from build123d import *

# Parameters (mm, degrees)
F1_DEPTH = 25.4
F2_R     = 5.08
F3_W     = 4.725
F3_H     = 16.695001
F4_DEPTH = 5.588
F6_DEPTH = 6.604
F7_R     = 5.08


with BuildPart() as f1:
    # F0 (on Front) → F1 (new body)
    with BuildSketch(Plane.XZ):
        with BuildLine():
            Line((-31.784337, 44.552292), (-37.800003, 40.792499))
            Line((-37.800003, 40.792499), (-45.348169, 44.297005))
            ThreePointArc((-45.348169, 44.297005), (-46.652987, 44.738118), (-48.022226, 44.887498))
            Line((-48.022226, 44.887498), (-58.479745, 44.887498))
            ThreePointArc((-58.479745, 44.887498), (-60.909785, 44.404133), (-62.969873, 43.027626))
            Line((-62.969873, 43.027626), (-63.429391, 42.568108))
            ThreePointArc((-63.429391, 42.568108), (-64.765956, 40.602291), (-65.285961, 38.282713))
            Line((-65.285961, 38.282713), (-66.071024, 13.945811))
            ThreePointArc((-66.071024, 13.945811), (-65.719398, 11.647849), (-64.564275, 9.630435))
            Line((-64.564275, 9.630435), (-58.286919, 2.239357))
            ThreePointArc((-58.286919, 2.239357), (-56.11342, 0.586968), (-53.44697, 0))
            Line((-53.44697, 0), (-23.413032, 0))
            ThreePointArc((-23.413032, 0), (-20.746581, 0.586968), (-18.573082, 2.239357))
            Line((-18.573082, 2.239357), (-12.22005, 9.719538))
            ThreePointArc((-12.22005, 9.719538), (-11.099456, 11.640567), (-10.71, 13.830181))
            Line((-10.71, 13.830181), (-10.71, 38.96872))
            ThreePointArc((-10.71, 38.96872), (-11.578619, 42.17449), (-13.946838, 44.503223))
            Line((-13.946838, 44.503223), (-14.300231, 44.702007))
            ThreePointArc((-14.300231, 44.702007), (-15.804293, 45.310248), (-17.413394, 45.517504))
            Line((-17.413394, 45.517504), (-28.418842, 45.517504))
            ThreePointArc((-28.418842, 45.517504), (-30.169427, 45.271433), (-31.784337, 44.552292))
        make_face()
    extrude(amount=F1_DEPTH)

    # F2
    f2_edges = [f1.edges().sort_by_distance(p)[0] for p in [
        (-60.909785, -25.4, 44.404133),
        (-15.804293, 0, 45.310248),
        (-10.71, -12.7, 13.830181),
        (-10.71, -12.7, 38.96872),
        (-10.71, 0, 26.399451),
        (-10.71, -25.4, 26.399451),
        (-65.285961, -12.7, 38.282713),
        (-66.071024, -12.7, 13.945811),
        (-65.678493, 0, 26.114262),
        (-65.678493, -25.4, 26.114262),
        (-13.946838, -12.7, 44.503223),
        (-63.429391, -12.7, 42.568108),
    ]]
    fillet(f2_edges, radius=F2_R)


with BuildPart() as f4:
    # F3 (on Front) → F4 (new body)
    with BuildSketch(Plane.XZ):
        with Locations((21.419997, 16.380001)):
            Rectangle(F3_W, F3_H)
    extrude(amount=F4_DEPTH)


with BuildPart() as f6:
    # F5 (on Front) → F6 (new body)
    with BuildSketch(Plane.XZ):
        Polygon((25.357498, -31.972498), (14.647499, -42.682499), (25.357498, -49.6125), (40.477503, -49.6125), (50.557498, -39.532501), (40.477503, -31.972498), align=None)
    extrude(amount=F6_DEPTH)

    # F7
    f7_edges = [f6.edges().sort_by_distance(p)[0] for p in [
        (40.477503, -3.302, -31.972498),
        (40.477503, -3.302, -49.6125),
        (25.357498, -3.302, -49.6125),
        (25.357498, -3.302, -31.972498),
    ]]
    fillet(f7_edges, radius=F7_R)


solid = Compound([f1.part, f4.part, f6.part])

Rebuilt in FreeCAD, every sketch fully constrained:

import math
import FreeCAD as App
import Part
import Sketcher
Q = App.Units.Quantity


def edges_at(feature, points):
    """Names of the edges that pass closest to the given points."""
    edges = feature.Shape.Edges
    near = lambda p: min(range(len(edges)), key=lambda i: edges[i].distToShape(Part.Vertex(*p))[0])
    return sorted({f"Edge{near(p) + 1}" for p in points})


def add_polygon(sketch, points):
    """Adds a closed chain of lines whose ends are joined by coincident constraints."""
    first, n = sketch.GeometryCount, len(points)
    for a, b in zip(points, points[1:] + points[:1]):
        sketch.addGeometry(Part.LineSegment(App.Vector(*a, 0), App.Vector(*b, 0)), False)
    for i in range(n):
        sketch.addConstraint(Sketcher.Constraint("Coincident", first + i, 2, first + (i + 1) % n, 1))

doc = App.newDocument("Part")
params = doc.addObject("Spreadsheet::Sheet", "Params")
for row, (alias, value) in enumerate([
    ("sketch1_radius", "0.25 in"),
    ("sketch1_radius2", "0.2499999 in"),
    ("sketch1_radius3", "0.2500001 in"),
    ("sketch1_radius4", "0.2500001 in"),
    ("sketch1_radius5", "0.25 in"),
    ("pad1_length", "1 in"),
    ("fillet_radius", "0.2 in"),
    ("pad2_length", "0.22 in"),
    ("pad3_length", "0.26 in"),
    ("fillet2_radius", "0.2 in"),
], start=1):
    params.set(f"A{row}", alias)
    params.set(f"B{row}", "=" + value)
    params.setAlias(f"B{row}", alias)

body = doc.addObject("PartDesign::Body", "Body")

sketch1 = body.newObject("Sketcher::SketchObject", "Sketch")
sketch1.AttachmentSupport = (doc.getObject("XZ_Plane"), [""])
sketch1.MapMode = "FlatFace"
sketch1.addGeometry([
    Part.LineSegment(App.Vector(-31.784337, 44.552292, 0), App.Vector(-37.800003, 40.792499, 0)),
    Part.LineSegment(App.Vector(-37.800003, 40.792499, 0), App.Vector(-45.348169, 44.297005, 0)),
    Part.ArcOfCircle(Part.Circle(App.Vector(-48.022224, 38.537508, 0), App.Vector(0, 0, 1), 6.34999), math.radians(65.095213), math.radians(90.000022)),
    Part.LineSegment(App.Vector(-48.022226, 44.887498, 0), App.Vector(-58.479745, 44.887498, 0)),
    Part.ArcOfCircle(Part.Circle(App.Vector(-58.479745, 38.537499, 0), App.Vector(0, 0, 1), 6.349999), math.radians(89.999997), math.radians(135.000005)),
    Part.LineSegment(App.Vector(-62.969873, 43.027626, 0), App.Vector(-63.429391, 42.568108, 0)),
    Part.ArcOfCircle(Part.Circle(App.Vector(-58.939265, 38.077982, 0), App.Vector(0, 0, 1), 6.349997), math.radians(134.999998), math.radians(178.152398)),
    Part.LineSegment(App.Vector(-65.285961, 38.282713, 0), App.Vector(-66.071024, 13.945811, 0)),
    Part.ArcOfCircle(Part.Circle(App.Vector(-59.724331, 13.741076, 0), App.Vector(0, 0, 1), 6.349995), math.radians(178.152365), math.radians(220.341771)),
    Part.LineSegment(App.Vector(-64.564275, 9.630435, 0), App.Vector(-58.286919, 2.239357, 0)),
    Part.ArcOfCircle(Part.Circle(App.Vector(-53.446968, 6.350002, 0), App.Vector(0, 0, 1), 6.350002), math.radians(-139.658242), math.radians(-90.000015)),
    Part.LineSegment(App.Vector(-53.44697, 0, 0), App.Vector(-23.413032, 0, 0)),
    Part.ArcOfCircle(Part.Circle(App.Vector(-23.413033, 6.350002, 0), App.Vector(0, 0, 1), 6.350002), math.radians(-89.999994), math.radians(-40.341758)),
    Part.LineSegment(App.Vector(-18.573082, 2.239357, 0), App.Vector(-12.22005, 9.719538, 0)),
    Part.ArcOfCircle(Part.Circle(App.Vector(-17.060008, 13.830184, 0), App.Vector(0, 0, 1), 6.350008), math.radians(-40.341721), math.radians(-0.000025)),
    Part.LineSegment(App.Vector(-10.71, 13.830181, 0), App.Vector(-10.71, 38.96872, 0)),
    Part.ArcOfCircle(Part.Circle(App.Vector(-17.060001, 38.96872, 0), App.Vector(0, 0, 1), 6.350001), math.radians(0.000004), math.radians(60.64221)),
    Part.LineSegment(App.Vector(-13.946838, 44.503223, 0), App.Vector(-14.300231, 44.702007, 0)),
    Part.ArcOfCircle(Part.Circle(App.Vector(-17.413389, 39.167518, 0), App.Vector(0, 0, 1), 6.349986), math.radians(60.642182), math.radians(90.000044)),
    Part.LineSegment(App.Vector(-17.413394, 45.517504, 0), App.Vector(-28.418842, 45.517504, 0)),
    Part.ArcOfCircle(Part.Circle(App.Vector(-28.418841, 39.1675, 0), App.Vector(0, 0, 1), 6.350004), math.radians(90.000013), math.radians(122.005394)),
], False)
sketch1.addConstraint([
    Sketcher.Constraint("Coincident", 0, 2, 1, 1),
    Sketcher.Constraint("Coincident", 1, 2, 2, 1),
    Sketcher.Constraint("Coincident", 2, 2, 3, 1),
    Sketcher.Constraint("Coincident", 3, 2, 4, 1),
    Sketcher.Constraint("Coincident", 4, 2, 5, 1),
    Sketcher.Constraint("Coincident", 5, 2, 6, 1),
    Sketcher.Constraint("Coincident", 6, 2, 7, 1),
    Sketcher.Constraint("Coincident", 7, 2, 8, 1),
    Sketcher.Constraint("Coincident", 8, 2, 9, 1),
    Sketcher.Constraint("Coincident", 9, 2, 10, 1),
    Sketcher.Constraint("Coincident", 10, 2, 11, 1),
    Sketcher.Constraint("Coincident", 11, 2, 12, 1),
    Sketcher.Constraint("Coincident", 12, 2, 13, 1),
    Sketcher.Constraint("Coincident", 13, 2, 14, 1),
    Sketcher.Constraint("Coincident", 14, 2, 15, 1),
    Sketcher.Constraint("Coincident", 15, 2, 16, 1),
    Sketcher.Constraint("Coincident", 16, 2, 17, 1),
    Sketcher.Constraint("Coincident", 17, 2, 18, 1),
    Sketcher.Constraint("Coincident", 18, 2, 19, 1),
    Sketcher.Constraint("Coincident", 19, 2, 20, 1),
    Sketcher.Constraint("Coincident", 20, 2, 0, 1),
    Sketcher.Constraint("Horizontal", 3),
    Sketcher.Constraint("Horizontal", 11),
    Sketcher.Constraint("Vertical", 15),
    Sketcher.Constraint("Horizontal", 19),
    Sketcher.Constraint("PointOnObject", 10, 2, -1),
    Sketcher.Constraint("Radius", 4, Q("0.25 in")),
    Sketcher.Constraint("Radius", 6, Q("0.2499999 in")),
    Sketcher.Constraint("Radius", 10, Q("0.2500001 in")),
    Sketcher.Constraint("Radius", 12, Q("0.2500001 in")),
    Sketcher.Constraint("Radius", 16, Q("0.25 in")),
    Sketcher.Constraint("Radius", 20, Q("0.2500002 in")),
    Sketcher.Constraint("Radius", 2, Q("6.34999 mm")),
    Sketcher.Constraint("Radius", 14, Q("6.350008 mm")),
    Sketcher.Constraint("Radius", 8, Q("6.349995 mm")),
    Sketcher.Constraint("Radius", 18, Q("6.349986 mm")),
    Sketcher.Constraint("DistanceX", 4, 3, 20, 3, Q("1.1835002 in")),
    Sketcher.Constraint("DistanceX", 20, 2, 19, 2, Q("0.1324998 in")),
    Sketcher.Constraint("DistanceX", 20, 2, 20, 3, Q("0.1324999 in")),
    Sketcher.Constraint("DistanceX", 3, 2, 3, 1, Q("10.457519 mm")),
    Sketcher.Constraint("DistanceX", 19, 2, 19, 1, Q("11.005448 mm")),
    Sketcher.Constraint("DistanceY", 15, 1, 15, 2, Q("25.138539 mm")),
    Sketcher.Constraint("DistanceY", -1, 1, 4, 3, Q("38.537499 mm")),
    Sketcher.Constraint("DistanceX", 16, 3, -1, 1, Q("17.060001 mm")),
    Sketcher.Constraint("DistanceY", -1, 1, 20, 3, Q("39.1675 mm")),
    Sketcher.Constraint("DistanceY", -1, 1, 0, 2, Q("40.792499 mm")),
    Sketcher.Constraint("DistanceX", 8, 3, 12, 3, Q("36.311298 mm")),
    Sketcher.Constraint("DistanceY", 16, 3, 18, 3, Q("0.198799 mm")),
    Sketcher.Constraint("DistanceY", 15, 2, 18, 3, Q("0.198798 mm")),
    Sketcher.Constraint("Distance", 0, Q("7.093961 mm")),
    Sketcher.Constraint("Distance", 1, Q("8.322041 mm")),
    Sketcher.Constraint("Distance", 7, Q("24.349561 mm")),
    Sketcher.Constraint("DistanceX", 11, 1, 11, 2, Q("30.033938 mm")),
    Sketcher.Constraint("DistanceY", -1, 1, 6, 3, Q("38.077982 mm")),
    Sketcher.Constraint("DistanceX", 8, 3, -1, 1, Q("59.724331 mm")),
    Sketcher.Constraint("DistanceX", 10, 3, -1, 1, Q("53.446968 mm")),
    Sketcher.Constraint("DistanceX", 18, 3, -1, 1, Q("17.413389 mm")),
    Sketcher.Constraint("DistanceX", 20, 3, -1, 1, Q("28.418841 mm")),
    Sketcher.Constraint("DistanceX", 1, 2, -1, 1, Q("45.348169 mm")),
    Sketcher.Constraint("DistanceX", 5, 2, -1, 1, Q("63.429391 mm")),
    Sketcher.Constraint("DistanceY", -1, 1, 5, 2, Q("42.568108 mm")),
    Sketcher.Constraint("DistanceX", 6, 2, -1, 1, Q("65.285961 mm")),
    Sketcher.Constraint("DistanceX", 9, 2, -1, 1, Q("58.286919 mm")),
    Sketcher.Constraint("DistanceX", 10, 2, -1, 1, Q("53.44697 mm")),
    Sketcher.Constraint("DistanceX", 12, 2, -1, 1, Q("18.573082 mm")),
    Sketcher.Constraint("DistanceX", 13, 2, -1, 1, Q("12.22005 mm")),
    Sketcher.Constraint("DistanceX", 16, 2, -1, 1, Q("13.946838 mm")),
    Sketcher.Constraint("DistanceX", 17, 2, -1, 1, Q("14.300231 mm")),
    Sketcher.Constraint("DistanceY", 8, 3, 2, 3, Q("24.796431 mm")),
    Sketcher.Constraint("DistanceX", 4, 3, 2, 2, Q("10.457519 mm")),
    Sketcher.Constraint("DistanceX", 4, 2, 2, 3, Q("14.947649 mm")),
    Sketcher.Constraint("DistanceX", 7, 2, 8, 2, Q("1.506749 mm")),
    Sketcher.Constraint("DistanceY", 12, 2, 13, 2, Q("7.480181 mm")),
])
sketch1.setExpression("Constraints[26]", "Params.sketch1_radius")
sketch1.setExpression("Constraints[27]", "Params.sketch1_radius2")
sketch1.setExpression("Constraints[28]", "Params.sketch1_radius3")
sketch1.setExpression("Constraints[29]", "Params.sketch1_radius4")
sketch1.setExpression("Constraints[30]", "Params.sketch1_radius5")
pad1 = body.newObject("PartDesign::Pad", "Pad")
pad1.Profile = sketch1
pad1.setExpression("Length", "Params.pad1_length")
doc.recompute()

fillet = body.newObject("PartDesign::Fillet", "Fillet")
fillet.Base = (pad1, edges_at(pad1, [
    (-60.91, -25.4, 44.404),
    (-15.804, 0, 45.31),
    (-10.71, -12.7, 13.83),
    (-10.71, -12.7, 38.969),
    (-10.71, 0, 26.399),
    (-10.71, -25.4, 26.399),
    (-65.286, -12.7, 38.283),
    (-66.071, -12.7, 13.946),
    (-65.678, 0, 26.114),
    (-65.678, -25.4, 26.114),
    (-13.947, -12.7, 44.503),
    (-63.429, -12.7, 42.568),
]))
fillet.setExpression("Radius", "Params.fillet_radius")
body2 = doc.addObject("PartDesign::Body", "Body001")

sketch2 = body2.newObject("Sketcher::SketchObject", "Sketch001")
sketch2.AttachmentSupport = (doc.getObject("XZ_Plane001"), [""])
sketch2.MapMode = "FlatFace"
add_polygon(sketch2, [(19.057497, 24.727501), (19.057497, 8.0325), (23.782497, 8.0325), (23.782497, 24.727501)])
sketch2.addConstraint([
    Sketcher.Constraint("Vertical", 0),
    Sketcher.Constraint("Horizontal", 1),
    Sketcher.Constraint("Vertical", 2),
    Sketcher.Constraint("Horizontal", 3),
    Sketcher.Constraint("DistanceX", 1, 1, 1, 2, Q("4.725 mm")),
    Sketcher.Constraint("DistanceY", 0, 2, 0, 1, Q("16.695001 mm")),
    Sketcher.Constraint("DistanceY", -1, 1, 0, 2, Q("8.0325 mm")),
    Sketcher.Constraint("DistanceX", -1, 1, 0, 2, Q("19.057497 mm")),
])
pad2 = body2.newObject("PartDesign::Pad", "Pad001")
pad2.Profile = sketch2
pad2.setExpression("Length", "Params.pad2_length")
body3 = doc.addObject("PartDesign::Body", "Body002")

sketch3 = body3.newObject("Sketcher::SketchObject", "Sketch002")
sketch3.AttachmentSupport = (doc.getObject("XZ_Plane002"), [""])
sketch3.MapMode = "FlatFace"
add_polygon(sketch3, [(25.357498, -31.972498), (14.647499, -42.682499), (25.357498, -49.6125), (40.477503, -49.6125), (50.557498, -39.532501), (40.477503, -31.972498)])
sketch3.addConstraint([
    Sketcher.Constraint("Horizontal", 2),
    Sketcher.Constraint("Horizontal", 5),
    Sketcher.Constraint("Parallel", 0, 3),
    Sketcher.Constraint("Vertical", 2, 2, 4, 2),
    Sketcher.Constraint("Vertical", 1, 2, 5, 2),
    Sketcher.Constraint("Angle", 0, Q("-134.999995 deg")),
    Sketcher.Constraint("DistanceX", -1, 1, 0, 2, Q("14.647499 mm")),
    Sketcher.Constraint("DistanceY", 0, 2, -1, 1, Q("42.682499 mm")),
    Sketcher.Constraint("DistanceY", 1, 2, -1, 1, Q("49.6125 mm")),
    Sketcher.Constraint("DistanceX", -1, 1, 3, 2, Q("50.557498 mm")),
    Sketcher.Constraint("DistanceY", 3, 2, -1, 1, Q("39.532501 mm")),
    Sketcher.Constraint("DistanceY", 4, 2, -1, 1, Q("31.972498 mm")),
])
pad3 = body3.newObject("PartDesign::Pad", "Pad002")
pad3.Profile = sketch3
pad3.setExpression("Length", "Params.pad3_length")
doc.recompute()

fillet2 = body3.newObject("PartDesign::Fillet", "Fillet001")
fillet2.Base = (pad3, edges_at(pad3, [
    (40.478, -3.302, -31.972),
    (40.478, -3.302, -49.612),
    (25.357, -3.302, -49.612),
    (25.357, -3.302, -31.972),
]))
fillet2.setExpression("Radius", "Params.fillet2_radius")

doc.recompute()
